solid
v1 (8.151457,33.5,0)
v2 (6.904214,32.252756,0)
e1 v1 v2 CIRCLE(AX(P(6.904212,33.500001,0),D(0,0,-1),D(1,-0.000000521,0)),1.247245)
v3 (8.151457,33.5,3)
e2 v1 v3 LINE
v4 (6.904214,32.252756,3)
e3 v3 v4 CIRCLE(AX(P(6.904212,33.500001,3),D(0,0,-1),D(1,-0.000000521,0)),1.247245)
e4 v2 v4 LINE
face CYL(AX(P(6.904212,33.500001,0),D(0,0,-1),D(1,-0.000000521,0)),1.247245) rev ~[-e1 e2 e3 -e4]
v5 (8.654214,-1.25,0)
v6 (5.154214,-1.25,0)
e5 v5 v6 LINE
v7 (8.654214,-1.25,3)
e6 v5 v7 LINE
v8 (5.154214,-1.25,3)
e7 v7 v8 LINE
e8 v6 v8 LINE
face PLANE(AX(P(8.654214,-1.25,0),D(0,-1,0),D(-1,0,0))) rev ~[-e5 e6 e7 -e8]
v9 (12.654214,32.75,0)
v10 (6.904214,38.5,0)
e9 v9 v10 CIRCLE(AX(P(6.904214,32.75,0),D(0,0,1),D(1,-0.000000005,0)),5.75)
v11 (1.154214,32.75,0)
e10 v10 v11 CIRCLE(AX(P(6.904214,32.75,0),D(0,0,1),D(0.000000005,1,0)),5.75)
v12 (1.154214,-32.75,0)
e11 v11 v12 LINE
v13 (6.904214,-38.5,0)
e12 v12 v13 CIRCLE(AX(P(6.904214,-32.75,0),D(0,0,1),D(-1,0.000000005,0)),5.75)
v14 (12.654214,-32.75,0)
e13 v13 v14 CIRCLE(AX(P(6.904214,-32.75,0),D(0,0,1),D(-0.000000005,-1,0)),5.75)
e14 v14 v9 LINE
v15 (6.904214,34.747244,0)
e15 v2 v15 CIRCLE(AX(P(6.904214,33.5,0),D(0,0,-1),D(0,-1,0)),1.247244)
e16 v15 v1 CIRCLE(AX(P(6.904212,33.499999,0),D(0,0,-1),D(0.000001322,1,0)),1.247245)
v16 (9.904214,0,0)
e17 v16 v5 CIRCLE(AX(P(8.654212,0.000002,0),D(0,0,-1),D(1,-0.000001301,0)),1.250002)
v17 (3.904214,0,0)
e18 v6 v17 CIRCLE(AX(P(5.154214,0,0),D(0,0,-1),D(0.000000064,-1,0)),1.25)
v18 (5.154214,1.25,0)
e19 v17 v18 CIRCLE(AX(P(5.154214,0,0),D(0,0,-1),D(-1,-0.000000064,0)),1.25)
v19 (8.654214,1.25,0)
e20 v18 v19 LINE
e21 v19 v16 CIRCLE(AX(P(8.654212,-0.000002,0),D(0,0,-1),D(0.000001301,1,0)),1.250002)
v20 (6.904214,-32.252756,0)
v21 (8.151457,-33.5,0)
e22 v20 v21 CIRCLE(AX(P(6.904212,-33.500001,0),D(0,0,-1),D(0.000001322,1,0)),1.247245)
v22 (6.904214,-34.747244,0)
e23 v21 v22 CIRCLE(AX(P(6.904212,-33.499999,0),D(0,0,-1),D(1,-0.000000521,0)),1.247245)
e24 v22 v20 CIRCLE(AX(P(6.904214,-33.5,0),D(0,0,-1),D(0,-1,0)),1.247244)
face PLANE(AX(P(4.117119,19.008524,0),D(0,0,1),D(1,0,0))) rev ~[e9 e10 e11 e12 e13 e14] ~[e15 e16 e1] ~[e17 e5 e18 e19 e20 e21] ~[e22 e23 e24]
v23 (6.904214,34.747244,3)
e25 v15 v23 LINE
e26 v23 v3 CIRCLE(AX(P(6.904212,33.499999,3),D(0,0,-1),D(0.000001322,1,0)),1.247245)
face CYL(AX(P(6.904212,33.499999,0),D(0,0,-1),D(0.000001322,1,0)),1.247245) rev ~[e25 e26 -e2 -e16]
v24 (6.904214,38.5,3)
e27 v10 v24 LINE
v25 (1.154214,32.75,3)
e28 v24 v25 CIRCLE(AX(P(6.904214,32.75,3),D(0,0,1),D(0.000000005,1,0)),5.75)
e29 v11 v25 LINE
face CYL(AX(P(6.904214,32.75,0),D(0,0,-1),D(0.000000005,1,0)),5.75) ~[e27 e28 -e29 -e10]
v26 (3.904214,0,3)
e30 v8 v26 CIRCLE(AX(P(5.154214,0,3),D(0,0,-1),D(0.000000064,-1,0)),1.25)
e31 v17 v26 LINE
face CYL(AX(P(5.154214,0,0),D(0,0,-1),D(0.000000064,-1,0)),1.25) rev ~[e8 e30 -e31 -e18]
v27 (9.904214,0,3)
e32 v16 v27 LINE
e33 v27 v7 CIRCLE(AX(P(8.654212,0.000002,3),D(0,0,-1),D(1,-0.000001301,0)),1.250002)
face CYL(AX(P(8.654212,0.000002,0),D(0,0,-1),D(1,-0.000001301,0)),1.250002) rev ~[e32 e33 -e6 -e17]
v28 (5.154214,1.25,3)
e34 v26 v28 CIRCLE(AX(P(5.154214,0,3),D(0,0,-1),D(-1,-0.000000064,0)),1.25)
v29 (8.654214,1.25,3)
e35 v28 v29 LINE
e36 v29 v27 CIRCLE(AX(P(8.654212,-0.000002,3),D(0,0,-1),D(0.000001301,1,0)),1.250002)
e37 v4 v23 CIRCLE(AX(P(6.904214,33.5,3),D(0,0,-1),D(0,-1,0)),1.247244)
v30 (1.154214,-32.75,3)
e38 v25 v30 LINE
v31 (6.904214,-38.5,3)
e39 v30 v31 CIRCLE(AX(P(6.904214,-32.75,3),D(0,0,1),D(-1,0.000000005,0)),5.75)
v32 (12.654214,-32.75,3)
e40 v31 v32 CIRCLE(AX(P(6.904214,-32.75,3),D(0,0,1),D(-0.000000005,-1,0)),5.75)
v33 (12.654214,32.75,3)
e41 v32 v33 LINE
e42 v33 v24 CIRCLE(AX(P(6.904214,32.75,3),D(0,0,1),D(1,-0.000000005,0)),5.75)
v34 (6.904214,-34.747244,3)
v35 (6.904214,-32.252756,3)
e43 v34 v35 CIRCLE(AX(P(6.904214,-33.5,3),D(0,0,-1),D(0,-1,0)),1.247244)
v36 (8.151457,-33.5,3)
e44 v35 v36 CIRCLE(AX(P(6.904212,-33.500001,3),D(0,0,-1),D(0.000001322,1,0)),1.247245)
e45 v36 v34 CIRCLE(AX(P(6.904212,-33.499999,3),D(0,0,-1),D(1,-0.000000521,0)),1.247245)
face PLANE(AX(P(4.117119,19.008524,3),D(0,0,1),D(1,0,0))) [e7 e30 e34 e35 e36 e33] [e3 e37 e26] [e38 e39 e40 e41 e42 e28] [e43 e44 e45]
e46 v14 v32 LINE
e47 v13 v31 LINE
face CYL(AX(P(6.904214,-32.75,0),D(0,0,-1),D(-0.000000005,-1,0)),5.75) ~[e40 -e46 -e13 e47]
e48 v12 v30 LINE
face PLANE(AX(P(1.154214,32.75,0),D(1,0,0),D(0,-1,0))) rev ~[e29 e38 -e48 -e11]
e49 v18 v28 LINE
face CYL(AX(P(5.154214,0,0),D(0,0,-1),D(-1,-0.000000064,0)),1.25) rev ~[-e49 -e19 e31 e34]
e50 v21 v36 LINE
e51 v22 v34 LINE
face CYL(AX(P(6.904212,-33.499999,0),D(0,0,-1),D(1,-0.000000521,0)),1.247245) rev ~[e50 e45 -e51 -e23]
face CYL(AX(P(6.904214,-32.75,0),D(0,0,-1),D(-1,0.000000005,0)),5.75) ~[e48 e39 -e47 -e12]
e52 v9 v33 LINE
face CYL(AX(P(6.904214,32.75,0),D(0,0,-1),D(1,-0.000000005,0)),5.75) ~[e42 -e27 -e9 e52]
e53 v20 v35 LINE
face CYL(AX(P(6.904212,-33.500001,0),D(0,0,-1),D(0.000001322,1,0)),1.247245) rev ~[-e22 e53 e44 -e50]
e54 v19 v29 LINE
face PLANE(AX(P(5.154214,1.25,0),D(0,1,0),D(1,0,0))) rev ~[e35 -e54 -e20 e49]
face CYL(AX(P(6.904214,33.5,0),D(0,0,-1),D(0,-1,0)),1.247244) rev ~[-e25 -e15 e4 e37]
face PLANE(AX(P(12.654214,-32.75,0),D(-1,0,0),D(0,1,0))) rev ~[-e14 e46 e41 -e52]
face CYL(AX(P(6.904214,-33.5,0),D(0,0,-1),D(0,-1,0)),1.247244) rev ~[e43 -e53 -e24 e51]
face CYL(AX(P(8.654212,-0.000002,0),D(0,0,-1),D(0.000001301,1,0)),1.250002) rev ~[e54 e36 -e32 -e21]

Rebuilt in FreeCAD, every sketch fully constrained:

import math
import FreeCAD as App
import Part
import Sketcher
Q = App.Units.Quantity

doc = App.newDocument("Part")
body = doc.addObject("PartDesign::Body", "Body")

sketch1 = doc.addObject("Sketcher::SketchObject", "Sketch")
body.addObject(sketch1)
sketch1.AttachmentSupport = (doc.XY_Plane, [""])
sketch1.MapMode = "FlatFace"
sketch1.addGeometry([
    Part.LineSegment(App.Vector(1.154214, 32.75, 0), App.Vector(1.154214, -32.75, 0)),
    Part.ArcOfCircle(Part.Circle(App.Vector(6.904214, -32.75, 0), App.Vector(0, 0, 1), 5.75), math.radians(180), math.radians(270)),
    Part.ArcOfCircle(Part.Circle(App.Vector(6.904214, -32.75, 0), App.Vector(0, 0, 1), 5.75), math.radians(-90), math.radians(0)),
    Part.LineSegment(App.Vector(12.654214, -32.75, 0), App.Vector(12.654214, 32.75, 0)),
    Part.ArcOfCircle(Part.Circle(App.Vector(6.904214, 32.75, 0), App.Vector(0, 0, 1), 5.75), math.radians(0), math.radians(90)),
    Part.ArcOfCircle(Part.Circle(App.Vector(6.904214, 32.75, 0), App.Vector(0, 0, 1), 5.75), math.radians(90), math.radians(180)),
    Part.ArcOfCircle(Part.Circle(App.Vector(6.904214, -33.5, 0), App.Vector(0, 0, 1), 1.247244), math.radians(90), math.radians(270)),
    Part.ArcOfCircle(Part.Circle(App.Vector(6.904212, -33.500001, 0), App.Vector(0, 0, 1), 1.247245), math.radians(0.00003), math.radians(89.999924)),
    Part.ArcOfCircle(Part.Circle(App.Vector(6.904212, -33.499999, 0), App.Vector(0, 0, 1), 1.247245), math.radians(-89.999924), math.radians(-0.00003)),
    Part.ArcOfCircle(Part.Circle(App.Vector(5.154214, 0, 0), App.Vector(0, 0, 1), 1.25), math.radians(179.999996), math.radians(270.000004)),
    Part.ArcOfCircle(Part.Circle(App.Vector(5.154214, 0, 0), App.Vector(0, 0, 1), 1.25), math.radians(89.999996), math.radians(180.000004)),
    Part.LineSegment(App.Vector(5.154214, 1.25, 0), App.Vector(8.654214, 1.25, 0)),
    Part.ArcOfCircle(Part.Circle(App.Vector(8.654212, -0.000002, 0), App.Vector(0, 0, 1), 1.250002), math.radians(0.000075), math.radians(89.999925)),
    Part.ArcOfCircle(Part.Circle(App.Vector(8.654212, 0.000002, 0), App.Vector(0, 0, 1), 1.250002), math.radians(-89.999925), math.radians(-0.000075)),
    Part.LineSegment(App.Vector(8.654214, -1.25, 0), App.Vector(5.154214, -1.25, 0)),
    Part.ArcOfCircle(Part.Circle(App.Vector(6.904214, 33.5, 0), App.Vector(0, 0, 1), 1.247244), math.radians(90), math.radians(270)),
    Part.ArcOfCircle(Part.Circle(App.Vector(6.904212, 33.499999, 0), App.Vector(0, 0, 1), 1.247245), math.radians(0.00003), math.radians(89.999924)),
    Part.ArcOfCircle(Part.Circle(App.Vector(6.904212, 33.500001, 0), App.Vector(0, 0, 1), 1.247245), math.radians(-89.999924), math.radians(-0.00003)),
], False)
sketch1.addConstraint([
    Sketcher.Constraint("Tangent", 0, 2, 1, 1),
    Sketcher.Constraint("Tangent", 1, 2, 2, 1),
    Sketcher.Constraint("Tangent", 2, 2, 3, 1),
    Sketcher.Constraint("Tangent", 3, 2, 4, 1),
    Sketcher.Constraint("Tangent", 4, 2, 5, 1),
    Sketcher.Constraint("Tangent", 5, 2, 0, 1),
    Sketcher.Constraint("Tangent", 6, 1, 7, 2),
    Sketcher.Constraint("Tangent", 7, 1, 8, 2),
    Sketcher.Constraint("Tangent", 8, 1, 6, 2),
    Sketcher.Constraint("Tangent", 9, 1, 10, 2),
    Sketcher.Constraint("Tangent", 10, 1, 11, 1),
    Sketcher.Constraint("Tangent", 11, 2, 12, 2),
    Sketcher.Constraint("Coincident", 12, 1, 13, 2),
    Sketcher.Constraint("Tangent", 13, 1, 14, 1),
    Sketcher.Constraint("Tangent", 14, 2, 9, 2),
    Sketcher.Constraint("Tangent", 15, 1, 16, 2),
    Sketcher.Constraint("Tangent", 16, 1, 17, 2),
    Sketcher.Constraint("Tangent", 17, 1, 15, 2),
    Sketcher.Constraint("Vertical", 0),
    Sketcher.Constraint("Vertical", 3),
    Sketcher.Constraint("Horizontal", 11),
    Sketcher.Constraint("Horizontal", 14),
    Sketcher.Constraint("Coincident", 13, 3, 12, 3),
    Sketcher.Constraint("Equal", 1, 2),
    Sketcher.Constraint("Equal", 2, 4),
    Sketcher.Constraint("Equal", 9, 10),
    Sketcher.Constraint("Equal", 8, 15),
    Sketcher.Constraint("Symmetric", 6, 3, 15, 3, -1),
    Sketcher.Constraint("Symmetric", 1, 2, 4, 2, -1),
    Sketcher.Constraint("PointOnObject", 9, 3, -1),
    Sketcher.Constraint("PointOnObject", 9, 1, -1),
    Sketcher.Constraint("PointOnObject", 12, 1, -1),
    Sketcher.Constraint("Horizontal", 8, 3, 7, 1),
    Sketcher.Constraint("Horizontal", 17, 3, 16, 1),
    Sketcher.Constraint("Vertical", 5, 3, 6, 3),
    Sketcher.Constraint("Vertical", 17, 3, 1, 2),
    Sketcher.Constraint("Vertical", 4, 2, 6, 1),
    Sketcher.Constraint("Vertical", 6, 1, 8, 1),
    Sketcher.Constraint("Vertical", 8, 1, 15, 1),
    Sketcher.Constraint("Vertical", 15, 1, 17, 1),
    Sketcher.Constraint("Radius", 1, Q("5.75 mm")),
    Sketcher.Constraint("Radius", 9, Q("1.25 mm")),
    Sketcher.Constraint("DistanceX", 11, 1, 11, 2, Q("3.5 mm")),
    Sketcher.Constraint("DistanceY", 0, 2, 0, 1, Q("65.5 mm")),
    Sketcher.Constraint("DistanceY", 1, 2, 7, 3, Q("4.999999 mm")),
    Sketcher.Constraint("DistanceX", 9, 1, 6, 1, Q("3 mm")),
    Sketcher.Constraint("Radius", 6, Q("1.247244 mm")),
    Sketcher.Constraint("DistanceX", -1, 1, 1, 3, Q("6.904214 mm")),
])
pad1 = doc.addObject("PartDesign::Pad", "Pad")
body.addObject(pad1)
pad1.Profile = sketch1
pad1.Length = 3

doc.recompute()
